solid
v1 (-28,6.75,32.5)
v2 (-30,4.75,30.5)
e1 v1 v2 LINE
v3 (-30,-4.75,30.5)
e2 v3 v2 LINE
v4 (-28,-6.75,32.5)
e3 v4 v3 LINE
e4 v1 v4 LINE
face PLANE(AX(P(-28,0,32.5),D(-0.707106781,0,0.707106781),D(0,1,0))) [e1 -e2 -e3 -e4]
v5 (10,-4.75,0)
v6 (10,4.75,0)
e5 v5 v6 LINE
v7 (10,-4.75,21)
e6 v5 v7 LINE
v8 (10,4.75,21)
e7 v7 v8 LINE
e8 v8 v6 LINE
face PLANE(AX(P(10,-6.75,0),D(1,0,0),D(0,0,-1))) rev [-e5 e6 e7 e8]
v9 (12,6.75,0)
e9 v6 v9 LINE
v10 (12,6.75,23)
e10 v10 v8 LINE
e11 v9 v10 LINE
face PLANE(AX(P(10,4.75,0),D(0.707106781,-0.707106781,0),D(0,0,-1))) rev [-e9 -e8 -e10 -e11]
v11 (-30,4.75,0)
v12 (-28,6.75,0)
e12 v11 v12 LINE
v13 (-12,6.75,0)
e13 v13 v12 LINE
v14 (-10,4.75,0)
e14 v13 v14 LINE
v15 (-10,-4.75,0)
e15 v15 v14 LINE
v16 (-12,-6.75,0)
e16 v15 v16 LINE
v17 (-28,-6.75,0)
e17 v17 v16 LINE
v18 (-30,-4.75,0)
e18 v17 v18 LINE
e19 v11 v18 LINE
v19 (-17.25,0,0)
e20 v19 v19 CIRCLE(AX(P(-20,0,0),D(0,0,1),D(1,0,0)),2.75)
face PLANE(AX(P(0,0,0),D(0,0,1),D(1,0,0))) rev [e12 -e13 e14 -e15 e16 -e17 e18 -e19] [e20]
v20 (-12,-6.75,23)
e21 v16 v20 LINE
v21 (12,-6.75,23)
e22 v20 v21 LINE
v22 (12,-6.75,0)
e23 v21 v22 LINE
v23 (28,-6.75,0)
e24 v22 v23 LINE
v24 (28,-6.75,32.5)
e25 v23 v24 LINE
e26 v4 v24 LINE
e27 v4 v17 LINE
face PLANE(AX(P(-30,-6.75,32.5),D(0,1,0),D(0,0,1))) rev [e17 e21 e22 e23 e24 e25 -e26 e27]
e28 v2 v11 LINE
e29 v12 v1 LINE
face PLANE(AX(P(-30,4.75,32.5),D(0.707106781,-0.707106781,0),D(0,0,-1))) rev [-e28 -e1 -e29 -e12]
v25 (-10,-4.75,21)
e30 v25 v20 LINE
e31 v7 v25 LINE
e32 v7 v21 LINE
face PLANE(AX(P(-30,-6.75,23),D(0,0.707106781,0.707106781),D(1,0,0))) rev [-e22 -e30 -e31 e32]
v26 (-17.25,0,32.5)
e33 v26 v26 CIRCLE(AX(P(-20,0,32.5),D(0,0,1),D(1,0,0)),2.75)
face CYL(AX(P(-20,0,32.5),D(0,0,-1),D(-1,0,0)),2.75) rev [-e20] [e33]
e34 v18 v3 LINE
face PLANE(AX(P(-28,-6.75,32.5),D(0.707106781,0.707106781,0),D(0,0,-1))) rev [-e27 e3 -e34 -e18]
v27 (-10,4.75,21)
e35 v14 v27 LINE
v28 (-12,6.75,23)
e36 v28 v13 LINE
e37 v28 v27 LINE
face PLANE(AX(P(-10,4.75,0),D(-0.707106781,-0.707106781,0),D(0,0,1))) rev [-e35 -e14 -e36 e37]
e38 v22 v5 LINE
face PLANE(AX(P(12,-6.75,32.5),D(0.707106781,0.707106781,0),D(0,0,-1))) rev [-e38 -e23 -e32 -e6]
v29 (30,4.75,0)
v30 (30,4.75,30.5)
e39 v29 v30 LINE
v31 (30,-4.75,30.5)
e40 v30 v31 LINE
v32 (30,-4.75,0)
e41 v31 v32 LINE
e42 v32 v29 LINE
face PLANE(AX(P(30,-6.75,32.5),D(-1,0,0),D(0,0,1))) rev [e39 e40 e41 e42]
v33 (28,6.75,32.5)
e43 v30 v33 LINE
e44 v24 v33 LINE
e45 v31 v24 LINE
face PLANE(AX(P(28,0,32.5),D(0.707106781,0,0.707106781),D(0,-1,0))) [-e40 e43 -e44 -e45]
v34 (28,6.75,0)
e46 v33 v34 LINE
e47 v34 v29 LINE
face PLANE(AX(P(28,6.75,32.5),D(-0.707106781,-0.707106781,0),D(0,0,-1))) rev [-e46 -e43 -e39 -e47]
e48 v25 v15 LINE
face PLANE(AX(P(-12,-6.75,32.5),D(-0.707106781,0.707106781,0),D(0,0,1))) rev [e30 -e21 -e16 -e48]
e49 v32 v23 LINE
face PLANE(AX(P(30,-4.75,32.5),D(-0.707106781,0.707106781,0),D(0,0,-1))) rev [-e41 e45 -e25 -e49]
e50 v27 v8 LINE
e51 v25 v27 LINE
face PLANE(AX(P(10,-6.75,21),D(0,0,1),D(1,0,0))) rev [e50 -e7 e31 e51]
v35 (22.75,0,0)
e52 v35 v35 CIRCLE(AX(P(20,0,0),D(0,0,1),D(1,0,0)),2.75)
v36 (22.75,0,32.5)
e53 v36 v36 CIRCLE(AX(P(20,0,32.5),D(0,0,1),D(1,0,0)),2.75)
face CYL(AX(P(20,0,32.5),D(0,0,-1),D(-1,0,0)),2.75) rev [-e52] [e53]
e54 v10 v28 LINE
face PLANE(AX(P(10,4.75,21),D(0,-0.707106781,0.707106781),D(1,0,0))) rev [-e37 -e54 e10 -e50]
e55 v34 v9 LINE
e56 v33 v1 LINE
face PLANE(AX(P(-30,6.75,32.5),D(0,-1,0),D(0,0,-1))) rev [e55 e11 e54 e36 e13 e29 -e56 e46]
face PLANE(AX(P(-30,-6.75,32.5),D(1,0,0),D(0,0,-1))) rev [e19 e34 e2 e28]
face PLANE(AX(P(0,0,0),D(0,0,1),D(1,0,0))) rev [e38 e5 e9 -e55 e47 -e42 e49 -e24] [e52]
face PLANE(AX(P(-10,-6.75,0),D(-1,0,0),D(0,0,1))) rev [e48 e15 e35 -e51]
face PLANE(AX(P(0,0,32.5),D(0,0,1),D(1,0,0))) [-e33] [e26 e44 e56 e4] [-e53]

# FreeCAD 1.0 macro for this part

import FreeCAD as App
import Part
import Sketcher
from FreeCAD import Vector
Q = App.Units.Quantity


def edges_at(feature, points):
    """Names of the edges that pass closest to the given points."""
    edges = feature.Shape.Edges
    near = lambda p: min(range(len(edges)), key=lambda i: edges[i].distToShape(Part.Vertex(*p))[0])
    return sorted({f"Edge{near(p) + 1}" for p in points})

doc = App.newDocument("Part")
body = doc.addObject("PartDesign::Body", "Body")

# Sketch on XY plane
sketch1 = body.newObject("Sketcher::SketchObject", "Sketch")
sketch1.AttachmentSupport = (doc.getObject("XY_Plane"), [""])
sketch1.MapMode = "FlatFace"
sketch1.addGeometry([
    Part.LineSegment(Vector(-30, -6.8, 0), Vector(30, -6.8, 0)),  # 0
    Part.LineSegment(Vector(30, -6.8, 0), Vector(30, 6.8, 0)),  # 1
    Part.LineSegment(Vector(30, 6.8, 0), Vector(-30, 6.8, 0)),  # 2
    Part.LineSegment(Vector(-30, 6.8, 0), Vector(-30, -6.8, 0)),  # 3
    Part.Circle(Vector(20, 0, 0), Vector(0, 0, 1), 2.8),  # 4
    Part.Circle(Vector(-20, 0, 0), Vector(0, 0, 1), 2.8),  # 5
], False)
sketch1.addConstraint([
    Sketcher.Constraint("Coincident", 0, 2, 1, 1),
    Sketcher.Constraint("Coincident", 1, 2, 2, 1),
    Sketcher.Constraint("Coincident", 2, 2, 3, 1),
    Sketcher.Constraint("Coincident", 3, 2, 0, 1),
    Sketcher.Constraint("Horizontal", 0),
    Sketcher.Constraint("Vertical", 1),
    Sketcher.Constraint("Horizontal", 2),
    Sketcher.Constraint("Vertical", 3),
    Sketcher.Constraint("Equal", 4, 5),
    Sketcher.Constraint("Symmetric", 4, 3, 5, 3, -1, 1),
    Sketcher.Constraint("Symmetric", 0, 2, 2, 2, -1, 1),
    Sketcher.Constraint("PointOnObject", 4, 3, -1),
    Sketcher.Constraint("Diameter", 4, Q("5.5 mm")),
    Sketcher.Constraint("DistanceX", 0, 1, 0, 2, Q("60 mm")),
    Sketcher.Constraint("DistanceY", 1, 1, 1, 2, Q("13.5 mm")),
    Sketcher.Constraint("DistanceX", -1, 1, 4, 3, Q("20 mm")),
])
pad1 = body.newObject("PartDesign::Pad", "Pad")
pad1.Profile = sketch1
pad1.Length = 32.5

# Sketch on XZ plane
sketch2 = body.newObject("Sketcher::SketchObject", "Sketch001")
sketch2.AttachmentSupport = (doc.getObject("XZ_Plane"), [""])
sketch2.MapMode = "FlatFace"
sketch2.AttachmentOffset = App.Placement(Vector(0, 0, -6.75), App.Rotation())
sketch2.addGeometry([
    Part.LineSegment(Vector(10, 21, 0), Vector(10, 0, 0)),
    Part.LineSegment(Vector(10, 0, 0), Vector(-10, 0, 0)),
    Part.LineSegment(Vector(-10, 0, 0), Vector(-10, 21, 0)),
    Part.LineSegment(Vector(-10, 21, 0), Vector(10, 21, 0)),
], False)
sketch2.addConstraint([
    Sketcher.Constraint("Coincident", 0, 2, 1, 1),
    Sketcher.Constraint("Coincident", 1, 2, 2, 1),
    Sketcher.Constraint("Coincident", 2, 2, 3, 1),
    Sketcher.Constraint("Coincident", 3, 2, 0, 1),
    Sketcher.Constraint("Vertical", 0),
    Sketcher.Constraint("Horizontal", 1),
    Sketcher.Constraint("Vertical", 2),
    Sketcher.Constraint("Horizontal", 3),
    Sketcher.Constraint("Symmetric", 0, 2, 1, 2, -1, 1),
    Sketcher.Constraint("DistanceX", 1, 2, 1, 1, Q("20 mm")),
    Sketcher.Constraint("DistanceY", 0, 2, 0, 1, Q("21 mm")),
])
pocket1 = body.newObject("PartDesign::Pocket", "Pocket")
pocket1.Profile = sketch2
pocket1.Type = "ThroughAll"
pocket1.Reversed = True
doc.recompute()

chamfer = body.newObject("PartDesign::Chamfer", "Chamfer")
chamfer.Base = (pocket1, edges_at(pocket1, [
    (30, 0, 32.5),
    (30, 6.75, 16.25),
    (30, -6.75, 16.25),
    (-30, -6.75, 16.25),
    (-30, 6.75, 16.25),
    (-30, 0, 32.5),
]))
chamfer.Size = 2
doc.recompute()

chamfer2 = body.newObject("PartDesign::Chamfer", "Chamfer001")
chamfer2.Base = (chamfer, edges_at(chamfer, [
    (10, -6.75, 10.5),
    (0, -6.75, 21),
    (-10, -6.75, 10.5),
    (10, 6.75, 10.5),
    (-10, 6.75, 10.5),
    (0, 6.75, 21),
]))
chamfer2.Size = 2

doc.recompute()
